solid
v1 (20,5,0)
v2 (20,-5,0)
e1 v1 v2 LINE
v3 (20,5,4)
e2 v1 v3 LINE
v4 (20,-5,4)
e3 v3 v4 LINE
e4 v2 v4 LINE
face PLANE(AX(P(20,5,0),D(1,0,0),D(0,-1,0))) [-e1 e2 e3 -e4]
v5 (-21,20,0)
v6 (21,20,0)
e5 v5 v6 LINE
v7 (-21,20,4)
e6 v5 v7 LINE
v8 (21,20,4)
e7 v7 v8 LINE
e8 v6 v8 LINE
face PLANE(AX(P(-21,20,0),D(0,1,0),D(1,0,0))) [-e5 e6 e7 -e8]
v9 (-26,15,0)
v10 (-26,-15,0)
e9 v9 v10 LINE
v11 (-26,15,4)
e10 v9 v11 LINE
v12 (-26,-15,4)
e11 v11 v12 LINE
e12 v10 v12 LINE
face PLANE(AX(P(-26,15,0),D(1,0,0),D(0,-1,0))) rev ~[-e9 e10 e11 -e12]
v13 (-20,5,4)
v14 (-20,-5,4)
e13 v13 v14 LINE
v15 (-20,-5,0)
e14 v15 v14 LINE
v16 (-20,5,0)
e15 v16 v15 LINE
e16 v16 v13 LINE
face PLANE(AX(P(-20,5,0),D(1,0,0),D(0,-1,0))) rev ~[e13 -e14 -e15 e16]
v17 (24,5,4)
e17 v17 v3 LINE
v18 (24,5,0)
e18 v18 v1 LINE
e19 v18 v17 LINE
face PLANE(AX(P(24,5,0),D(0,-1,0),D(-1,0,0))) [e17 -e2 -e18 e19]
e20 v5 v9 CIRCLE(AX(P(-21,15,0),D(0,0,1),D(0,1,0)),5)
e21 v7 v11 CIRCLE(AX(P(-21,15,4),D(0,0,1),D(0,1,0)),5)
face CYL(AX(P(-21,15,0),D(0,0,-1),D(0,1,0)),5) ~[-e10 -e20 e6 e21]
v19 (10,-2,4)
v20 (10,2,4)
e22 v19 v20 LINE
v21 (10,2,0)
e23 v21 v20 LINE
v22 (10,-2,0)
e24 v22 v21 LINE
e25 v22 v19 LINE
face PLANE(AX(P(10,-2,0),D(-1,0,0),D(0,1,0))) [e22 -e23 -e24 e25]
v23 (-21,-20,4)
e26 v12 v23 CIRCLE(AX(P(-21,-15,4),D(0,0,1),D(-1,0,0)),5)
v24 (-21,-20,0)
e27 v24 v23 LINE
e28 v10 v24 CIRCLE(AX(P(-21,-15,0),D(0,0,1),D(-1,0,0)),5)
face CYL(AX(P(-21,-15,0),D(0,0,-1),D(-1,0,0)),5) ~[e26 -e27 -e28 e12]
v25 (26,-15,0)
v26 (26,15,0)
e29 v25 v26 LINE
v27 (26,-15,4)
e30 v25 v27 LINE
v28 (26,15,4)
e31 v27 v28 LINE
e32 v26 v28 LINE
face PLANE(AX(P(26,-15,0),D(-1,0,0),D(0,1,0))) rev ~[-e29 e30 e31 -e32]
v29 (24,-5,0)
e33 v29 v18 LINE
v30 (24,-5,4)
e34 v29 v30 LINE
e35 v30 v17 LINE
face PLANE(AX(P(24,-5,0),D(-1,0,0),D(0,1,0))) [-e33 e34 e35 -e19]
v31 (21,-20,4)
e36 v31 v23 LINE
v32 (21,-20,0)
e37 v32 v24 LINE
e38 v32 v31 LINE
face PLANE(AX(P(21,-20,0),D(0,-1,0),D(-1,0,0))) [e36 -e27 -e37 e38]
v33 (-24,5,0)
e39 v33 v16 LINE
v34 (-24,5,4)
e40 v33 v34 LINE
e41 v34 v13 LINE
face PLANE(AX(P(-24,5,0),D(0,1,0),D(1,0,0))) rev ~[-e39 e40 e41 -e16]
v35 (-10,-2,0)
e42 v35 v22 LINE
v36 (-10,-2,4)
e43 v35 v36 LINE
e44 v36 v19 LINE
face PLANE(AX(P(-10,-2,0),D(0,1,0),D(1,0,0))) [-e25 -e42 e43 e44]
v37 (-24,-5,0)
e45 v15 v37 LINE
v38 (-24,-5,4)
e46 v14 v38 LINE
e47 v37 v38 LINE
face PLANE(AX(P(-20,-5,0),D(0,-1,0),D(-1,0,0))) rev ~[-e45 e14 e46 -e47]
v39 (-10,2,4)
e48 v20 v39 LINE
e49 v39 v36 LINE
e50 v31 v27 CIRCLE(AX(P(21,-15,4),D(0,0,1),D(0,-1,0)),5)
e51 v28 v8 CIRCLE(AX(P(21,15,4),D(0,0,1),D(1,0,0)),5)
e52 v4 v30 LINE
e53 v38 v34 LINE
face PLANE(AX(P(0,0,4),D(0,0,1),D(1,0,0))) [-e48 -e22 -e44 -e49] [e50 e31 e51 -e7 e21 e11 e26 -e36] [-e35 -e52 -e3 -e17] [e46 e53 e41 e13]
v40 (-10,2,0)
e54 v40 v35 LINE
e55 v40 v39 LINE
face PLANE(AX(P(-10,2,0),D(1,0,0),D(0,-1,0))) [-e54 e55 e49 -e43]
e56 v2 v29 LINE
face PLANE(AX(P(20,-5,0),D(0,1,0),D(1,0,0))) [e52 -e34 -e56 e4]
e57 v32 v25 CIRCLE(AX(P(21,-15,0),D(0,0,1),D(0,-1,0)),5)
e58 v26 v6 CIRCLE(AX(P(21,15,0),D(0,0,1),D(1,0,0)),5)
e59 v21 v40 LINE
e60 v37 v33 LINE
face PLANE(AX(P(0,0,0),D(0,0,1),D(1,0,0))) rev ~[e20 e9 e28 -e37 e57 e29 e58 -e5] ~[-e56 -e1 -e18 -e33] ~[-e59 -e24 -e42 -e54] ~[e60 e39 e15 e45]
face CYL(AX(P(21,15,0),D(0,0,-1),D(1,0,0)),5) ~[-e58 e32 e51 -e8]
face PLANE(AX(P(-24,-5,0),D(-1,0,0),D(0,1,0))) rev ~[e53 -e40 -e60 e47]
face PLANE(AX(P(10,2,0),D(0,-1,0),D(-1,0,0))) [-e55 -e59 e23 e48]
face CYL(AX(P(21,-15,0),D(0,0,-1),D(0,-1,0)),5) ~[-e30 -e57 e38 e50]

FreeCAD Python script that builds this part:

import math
import FreeCAD as App
import Part
import Sketcher

V = App.Vector

doc = App.newDocument("Part")
body = doc.addObject("PartDesign::Body", "Body")

# Sketch on XY plane
sketch1 = body.newObject("Sketcher::SketchObject", "Sketch")
sketch1.AttachmentSupport = (doc.getObject("XY_Plane"), [""])
sketch1.MapMode = "FlatFace"
sketch1.addGeometry(Part.LineSegment(V(21, 20, 0), V(-21, 20, 0)), False)
sketch1.addGeometry(Part.ArcOfCircle(Part.Circle(V(-21, 15, 0), V(0, 0, 1), 5), math.radians(90), math.radians(180)), False)
sketch1.addGeometry(Part.LineSegment(V(-26, 15, 0), V(-26, -15, 0)), False)
sketch1.addGeometry(Part.ArcOfCircle(Part.Circle(V(-21, -15, 0), V(0, 0, 1), 5), math.radians(180), math.radians(270)), False)
sketch1.addGeometry(Part.LineSegment(V(-21, -20, 0), V(21, -20, 0)), False)
sketch1.addGeometry(Part.ArcOfCircle(Part.Circle(V(21, -15, 0), V(0, 0, 1), 5), math.radians(-90), math.radians(0)), False)
sketch1.addGeometry(Part.LineSegment(V(26, -15, 0), V(26, 15, 0)), False)
sketch1.addGeometry(Part.ArcOfCircle(Part.Circle(V(21, 15, 0), V(0, 0, 1), 5), math.radians(0), math.radians(90)), False)
sketch1.addGeometry(Part.LineSegment(V(-24, -5, 0), V(-24, 5, 0)), False)
sketch1.addGeometry(Part.LineSegment(V(-24, 5, 0), V(-20, 5, 0)), False)
sketch1.addGeometry(Part.LineSegment(V(-20, 5, 0), V(-20, -5, 0)), False)
sketch1.addGeometry(Part.LineSegment(V(-20, -5, 0), V(-24, -5, 0)), False)
sketch1.addGeometry(Part.LineSegment(V(10, -2, 0), V(-10, -2, 0)), False)
sketch1.addGeometry(Part.LineSegment(V(-10, -2, 0), V(-10, 2, 0)), False)
sketch1.addGeometry(Part.LineSegment(V(-10, 2, 0), V(10, 2, 0)), False)
sketch1.addGeometry(Part.LineSegment(V(10, 2, 0), V(10, -2, 0)), False)
sketch1.addGeometry(Part.LineSegment(V(20, 5, 0), V(24, 5, 0)), False)
sketch1.addGeometry(Part.LineSegment(V(24, 5, 0), V(24, -5, 0)), False)
sketch1.addGeometry(Part.LineSegment(V(24, -5, 0), V(20, -5, 0)), False)
sketch1.addGeometry(Part.LineSegment(V(20, -5, 0), V(20, 5, 0)), False)
sketch1.addConstraint(Sketcher.Constraint("Tangent", 0, 2, 1, 1))
sketch1.addConstraint(Sketcher.Constraint("Tangent", 1, 2, 2, 1))
sketch1.addConstraint(Sketcher.Constraint("Tangent", 2, 2, 3, 1))
sketch1.addConstraint(Sketcher.Constraint("Tangent", 3, 2, 4, 1))
sketch1.addConstraint(Sketcher.Constraint("Tangent", 4, 2, 5, 1))
sketch1.addConstraint(Sketcher.Constraint("Tangent", 5, 2, 6, 1))
sketch1.addConstraint(Sketcher.Constraint("Tangent", 6, 2, 7, 1))
sketch1.addConstraint(Sketcher.Constraint("Tangent", 7, 2, 0, 1))
sketch1.addConstraint(Sketcher.Constraint("Coincident", 8, 2, 9, 1))
sketch1.addConstraint(Sketcher.Constraint("Coincident", 9, 2, 10, 1))
sketch1.addConstraint(Sketcher.Constraint("Coincident", 10, 2, 11, 1))
sketch1.addConstraint(Sketcher.Constraint("Coincident", 11, 2, 8, 1))
sketch1.addConstraint(Sketcher.Constraint("Coincident", 12, 2, 13, 1))
sketch1.addConstraint(Sketcher.Constraint("Coincident", 13, 2, 14, 1))
sketch1.addConstraint(Sketcher.Constraint("Coincident", 14, 2, 15, 1))
sketch1.addConstraint(Sketcher.Constraint("Coincident", 15, 2, 12, 1))
sketch1.addConstraint(Sketcher.Constraint("Coincident", 16, 2, 17, 1))
sketch1.addConstraint(Sketcher.Constraint("Coincident", 17, 2, 18, 1))
sketch1.addConstraint(Sketcher.Constraint("Coincident", 18, 2, 19, 1))
sketch1.addConstraint(Sketcher.Constraint("Coincident", 19, 2, 16, 1))
sketch1.addConstraint(Sketcher.Constraint("Horizontal", 0))
sketch1.addConstraint(Sketcher.Constraint("Vertical", 2))
sketch1.addConstraint(Sketcher.Constraint("Horizontal", 4))
sketch1.addConstraint(Sketcher.Constraint("Vertical", 6))
sketch1.addConstraint(Sketcher.Constraint("Vertical", 8))
sketch1.addConstraint(Sketcher.Constraint("Horizontal", 9))
sketch1.addConstraint(Sketcher.Constraint("Vertical", 10))
sketch1.addConstraint(Sketcher.Constraint("Horizontal", 11))
sketch1.addConstraint(Sketcher.Constraint("Horizontal", 12))
sketch1.addConstraint(Sketcher.Constraint("Vertical", 13))
sketch1.addConstraint(Sketcher.Constraint("Horizontal", 14))
sketch1.addConstraint(Sketcher.Constraint("Vertical", 15))
sketch1.addConstraint(Sketcher.Constraint("Horizontal", 16))
sketch1.addConstraint(Sketcher.Constraint("Vertical", 17))
sketch1.addConstraint(Sketcher.Constraint("Horizontal", 18))
sketch1.addConstraint(Sketcher.Constraint("Vertical", 19))
sketch1.addConstraint(Sketcher.Constraint("Equal", 1, 3))
sketch1.addConstraint(Sketcher.Constraint("Equal", 3, 5))
sketch1.addConstraint(Sketcher.Constraint("Equal", 5, 7))
sketch1.addConstraint(Sketcher.Constraint("Symmetric", 1, 3, 5, 3, -1, 1))
sketch1.addConstraint(Sketcher.Constraint("Symmetric", 12, 2, 14, 2, -1, 1))
sketch1.addConstraint(Sketcher.Constraint("Symmetric", 11, 2, 16, 2, -1, 1))
sketch1.addConstraint(Sketcher.Constraint("Symmetric", 9, 2, 18, 2, -1, 1))
sketch1.addConstraint(Sketcher.Constraint("Horizontal", 9, 2, 16, 2))
sketch1.addConstraint(Sketcher.Constraint("Equal", 18, 13))
sketch1.addConstraint(Sketcher.Constraint("Radius", 1, 5.0))
sketch1.addConstraint(Sketcher.Constraint("DistanceX", 9, 1, 9, 2, 4.0))
sketch1.addConstraint(Sketcher.Constraint("DistanceX", 12, 2, 12, 1, 20.0))
sketch1.addConstraint(Sketcher.Constraint("DistanceY", 8, 1, 8, 2, 10.0))
sketch1.addConstraint(Sketcher.Constraint("DistanceY", -1, 1, 0, 2, 20.0))
sketch1.addConstraint(Sketcher.Constraint("DistanceX", 9, 2, -1, 1, 20.0))
sketch1.addConstraint(Sketcher.Constraint("DistanceX", 0, 2, 0, 1, 42.0))
pad1 = body.newObject("PartDesign::Pad", "Pad")
pad1.Profile = sketch1
pad1.Length = 4

doc.recompute()
